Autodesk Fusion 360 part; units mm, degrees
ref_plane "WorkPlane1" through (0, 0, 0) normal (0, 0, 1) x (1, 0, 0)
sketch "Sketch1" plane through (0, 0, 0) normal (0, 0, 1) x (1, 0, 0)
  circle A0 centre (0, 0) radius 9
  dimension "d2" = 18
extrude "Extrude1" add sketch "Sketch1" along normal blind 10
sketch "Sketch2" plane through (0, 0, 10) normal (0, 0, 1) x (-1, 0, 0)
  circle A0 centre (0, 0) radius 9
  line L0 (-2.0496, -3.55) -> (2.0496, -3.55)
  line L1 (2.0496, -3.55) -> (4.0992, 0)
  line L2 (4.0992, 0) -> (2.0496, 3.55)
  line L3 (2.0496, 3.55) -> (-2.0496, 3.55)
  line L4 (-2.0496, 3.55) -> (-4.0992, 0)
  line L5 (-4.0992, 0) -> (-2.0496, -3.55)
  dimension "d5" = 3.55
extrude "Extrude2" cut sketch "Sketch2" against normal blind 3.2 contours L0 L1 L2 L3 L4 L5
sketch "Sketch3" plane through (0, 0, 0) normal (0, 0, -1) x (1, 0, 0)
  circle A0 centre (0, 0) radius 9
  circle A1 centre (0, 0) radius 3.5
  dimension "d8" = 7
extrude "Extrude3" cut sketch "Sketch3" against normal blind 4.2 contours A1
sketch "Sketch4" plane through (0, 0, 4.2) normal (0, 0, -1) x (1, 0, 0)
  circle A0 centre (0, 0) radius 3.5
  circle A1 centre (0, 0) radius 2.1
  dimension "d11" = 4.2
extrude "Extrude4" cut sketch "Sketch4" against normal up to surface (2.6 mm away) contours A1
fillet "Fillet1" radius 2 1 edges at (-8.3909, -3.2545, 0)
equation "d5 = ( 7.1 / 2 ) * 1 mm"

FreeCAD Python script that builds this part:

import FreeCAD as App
import Part
import Sketcher
from FreeCAD import Vector
Q = App.Units.Quantity


def edges_at(feature, points):
    """Names of the edges that pass closest to the given points."""
    edges = feature.Shape.Edges
    near = lambda p: min(range(len(edges)), key=lambda i: edges[i].distToShape(Part.Vertex(*p))[0])
    return sorted({f"Edge{near(p) + 1}" for p in points})

doc = App.newDocument("Part")
body = doc.addObject("PartDesign::Body", "Body")

sketch1 = body.newObject("Sketcher::SketchObject", "Sketch")
sketch1.AttachmentSupport = (doc.getObject("XY_Plane"), [""])
sketch1.MapMode = "FlatFace"
sketch1.addGeometry(Part.Circle(Vector(0, 0, 0), Vector(0, 0, 1), 9), False)
sketch1.addConstraint(Sketcher.Constraint("Coincident", 0, 3, -1, 1))
sketch1.addConstraint(Sketcher.Constraint("Diameter", 0, 18.0))
pad1 = body.newObject("PartDesign::Pad", "Pad")
pad1.Profile = sketch1
pad1.Length = 10

sketch2 = body.newObject("Sketcher::SketchObject", "Sketch001")
sketch2.AttachmentSupport = (doc.getObject("XY_Plane"), [""])
sketch2.MapMode = "FlatFace"
sketch2.AttachmentOffset = App.Placement(Vector(0, 0, 10), App.Rotation())
sketch2.addGeometry(Part.LineSegment(Vector(4.1, 0, 0), Vector(2, 3.5, 0)), False)
sketch2.addGeometry(Part.LineSegment(Vector(2, 3.5, 0), Vector(-2, 3.5, 0)), False)
sketch2.addGeometry(Part.LineSegment(Vector(-2, 3.5, 0), Vector(-4.1, 0, 0)), False)
sketch2.addGeometry(Part.LineSegment(Vector(-4.1, 0, 0), Vector(-2, -3.5, 0)), False)
sketch2.addGeometry(Part.LineSegment(Vector(-2, -3.5, 0), Vector(2, -3.5, 0)), False)
sketch2.addGeometry(Part.LineSegment(Vector(2, -3.5, 0), Vector(4.1, 0, 0)), False)
sketch2.addConstraint(Sketcher.Constraint("Coincident", 0, 2, 1, 1))
sketch2.addConstraint(Sketcher.Constraint("Coincident", 1, 2, 2, 1))
sketch2.addConstraint(Sketcher.Constraint("Coincident", 2, 2, 3, 1))
sketch2.addConstraint(Sketcher.Constraint("Coincident", 3, 2, 4, 1))
sketch2.addConstraint(Sketcher.Constraint("Coincident", 4, 2, 5, 1))
sketch2.addConstraint(Sketcher.Constraint("Coincident", 5, 2, 0, 1))
sketch2.addConstraint(Sketcher.Constraint("Horizontal", 1))
sketch2.addConstraint(Sketcher.Constraint("Horizontal", 4))
sketch2.addConstraint(Sketcher.Constraint("Symmetric", 0, 2, 3, 2, -1, 1))
sketch2.addConstraint(Sketcher.Constraint("Symmetric", 2, 2, 5, 2, -1, 1))
sketch2.addConstraint(Sketcher.Constraint("PointOnObject", 2, 2, -1))
sketch2.addConstraint(Sketcher.Constraint("Parallel", 2, 5))
sketch2.addConstraint(Sketcher.Constraint("Vertical", 1, 2, 3, 2))
sketch2.addConstraint(Sketcher.Constraint("DistanceY", -1, 1, 0, 2, 3.55))
sketch2.addConstraint(Sketcher.Constraint("Angle", 0, Q("120 deg")))
sketch2.addConstraint(Sketcher.Constraint("DistanceX", 1, 2, 1, 1, 4.0992))
pocket1 = body.newObject("PartDesign::Pocket", "Pocket")
pocket1.Profile = sketch2
pocket1.Length = 3.2

sketch3 = body.newObject("Sketcher::SketchObject", "Sketch002")
sketch3.AttachmentSupport = (doc.getObject("XY_Plane"), [""])
sketch3.MapMode = "FlatFace"
sketch3.addGeometry(Part.Circle(Vector(0, 0, 0), Vector(0, 0, 1), 3.5), False)
sketch3.addConstraint(Sketcher.Constraint("Coincident", 0, 3, -1, 1))
sketch3.addConstraint(Sketcher.Constraint("Diameter", 0, 7.0))
pocket2 = body.newObject("PartDesign::Pocket", "Pocket001")
pocket2.Profile = sketch3
pocket2.Length = 4.2
pocket2.Reversed = True

sketch4 = body.newObject("Sketcher::SketchObject", "Sketch003")
sketch4.AttachmentSupport = (doc.getObject("XY_Plane"), [""])
sketch4.MapMode = "FlatFace"
sketch4.AttachmentOffset = App.Placement(Vector(0, 0, 4.2), App.Rotation())
sketch4.addGeometry(Part.Circle(Vector(0, 0, 0), Vector(0, 0, 1), 2.1), False)
sketch4.addConstraint(Sketcher.Constraint("Coincident", 0, 3, -1, 1))
sketch4.addConstraint(Sketcher.Constraint("Diameter", 0, 4.2))
pocket3 = body.newObject("PartDesign::Pocket", "Pocket002")
pocket3.Profile = sketch4
pocket3.Length = 2.6
pocket3.Reversed = True
doc.recompute()

fillet = body.newObject("PartDesign::Fillet", "Fillet")
fillet.Base = (pocket3, edges_at(pocket3, [(-8.391, -3.255, 0)]))
fillet.Radius = 2

doc.recompute()
